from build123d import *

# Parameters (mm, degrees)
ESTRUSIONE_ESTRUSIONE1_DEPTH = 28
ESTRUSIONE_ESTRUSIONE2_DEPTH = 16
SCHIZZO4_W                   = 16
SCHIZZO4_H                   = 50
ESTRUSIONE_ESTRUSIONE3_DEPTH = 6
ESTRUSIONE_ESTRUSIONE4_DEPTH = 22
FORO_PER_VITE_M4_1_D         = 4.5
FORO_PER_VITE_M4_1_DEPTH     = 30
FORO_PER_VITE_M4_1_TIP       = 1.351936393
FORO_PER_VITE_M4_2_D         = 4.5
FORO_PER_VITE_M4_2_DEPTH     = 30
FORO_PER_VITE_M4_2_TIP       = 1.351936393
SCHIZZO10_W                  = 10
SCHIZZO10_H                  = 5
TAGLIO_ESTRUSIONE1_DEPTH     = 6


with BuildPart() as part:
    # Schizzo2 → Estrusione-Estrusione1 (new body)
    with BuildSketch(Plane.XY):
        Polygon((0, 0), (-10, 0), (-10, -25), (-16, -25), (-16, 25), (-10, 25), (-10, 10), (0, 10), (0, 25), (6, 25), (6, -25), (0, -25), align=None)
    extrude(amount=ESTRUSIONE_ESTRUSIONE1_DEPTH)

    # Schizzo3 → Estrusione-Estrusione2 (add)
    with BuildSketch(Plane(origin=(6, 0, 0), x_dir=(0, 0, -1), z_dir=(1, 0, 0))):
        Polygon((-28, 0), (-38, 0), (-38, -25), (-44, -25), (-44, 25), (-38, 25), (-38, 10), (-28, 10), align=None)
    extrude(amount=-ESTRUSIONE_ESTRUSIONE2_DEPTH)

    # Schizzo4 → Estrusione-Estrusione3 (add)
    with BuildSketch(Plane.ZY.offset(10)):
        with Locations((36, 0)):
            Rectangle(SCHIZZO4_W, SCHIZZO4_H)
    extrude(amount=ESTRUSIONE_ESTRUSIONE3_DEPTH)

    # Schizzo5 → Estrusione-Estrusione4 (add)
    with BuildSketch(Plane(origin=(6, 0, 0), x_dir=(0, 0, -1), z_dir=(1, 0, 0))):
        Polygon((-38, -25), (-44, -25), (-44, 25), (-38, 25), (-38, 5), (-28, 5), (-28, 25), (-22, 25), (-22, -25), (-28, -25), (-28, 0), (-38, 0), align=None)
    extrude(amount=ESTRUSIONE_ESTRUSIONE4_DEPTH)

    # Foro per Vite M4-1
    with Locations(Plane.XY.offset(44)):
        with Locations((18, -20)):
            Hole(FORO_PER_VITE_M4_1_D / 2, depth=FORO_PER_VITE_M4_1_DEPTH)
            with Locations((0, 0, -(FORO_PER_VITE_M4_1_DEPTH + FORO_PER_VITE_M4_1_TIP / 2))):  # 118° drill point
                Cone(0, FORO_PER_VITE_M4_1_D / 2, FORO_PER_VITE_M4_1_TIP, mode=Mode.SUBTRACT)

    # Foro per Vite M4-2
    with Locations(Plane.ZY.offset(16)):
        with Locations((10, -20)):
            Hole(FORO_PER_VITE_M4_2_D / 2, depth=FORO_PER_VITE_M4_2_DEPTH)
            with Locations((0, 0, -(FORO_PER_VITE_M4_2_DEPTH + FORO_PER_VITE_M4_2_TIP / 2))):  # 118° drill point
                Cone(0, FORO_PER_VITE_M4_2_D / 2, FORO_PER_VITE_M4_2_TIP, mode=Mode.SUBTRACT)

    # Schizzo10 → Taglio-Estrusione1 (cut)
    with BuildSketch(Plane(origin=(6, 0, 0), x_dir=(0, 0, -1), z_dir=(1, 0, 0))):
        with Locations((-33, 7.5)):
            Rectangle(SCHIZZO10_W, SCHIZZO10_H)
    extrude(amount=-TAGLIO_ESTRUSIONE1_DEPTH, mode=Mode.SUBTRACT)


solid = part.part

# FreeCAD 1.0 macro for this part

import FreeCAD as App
import Part
import Sketcher

V = App.Vector

doc = App.newDocument("Part")
params = doc.addObject("Spreadsheet::Sheet", "Params")
for row, (alias, value) in enumerate([
    ("sketch1_width", "10 mm"),
    ("sketch1_width2", "6 mm"),
    ("sketch1_height", "25 mm"),
    ("sketch1_height2", "15 mm"),
    ("pad1_length", "28 mm"),
    ("sketch2_width", "10 mm"),
    ("sketch2_width2", "15 mm"),
    ("sketch2_height", "6 mm"),
    ("pad2_length", "16 mm"),
    ("sketch3_width", "50 mm"),
    ("sketch3_height", "16 mm"),
    ("pad3_length", "6 mm"),
    ("sketch4_width", "25 mm"),
    ("sketch4_width2", "20 mm"),
    ("sketch4_height", "6 mm"),
    ("sketch4_height2", "10 mm"),
    ("pad4_length", "22 mm"),
    ("sketch5_diameter", "4.5 mm"),
    ("hole_diameter", "4.5 mm"),
    ("hole_depth", "30 mm"),
    ("sketch6_diameter", "4.5 mm"),
    ("hole2_diameter", "4.5 mm"),
    ("hole2_depth", "30 mm"),
    ("sketch7_width", "5 mm"),
    ("sketch7_height", "10 mm"),
    ("pocket1_length", "6 mm"),
], start=1):
    params.set(f"A{row}", alias)
    params.set(f"B{row}", "=" + value)
    params.setAlias(f"B{row}", alias)

body = doc.addObject("PartDesign::Body", "Body")

# Sketch on XY plane
sketch1 = doc.addObject("Sketcher::SketchObject", "Sketch")
body.addObject(sketch1)
sketch1.AttachmentSupport = (doc.XY_Plane, [""])
sketch1.MapMode = "FlatFace"
sketch1.addGeometry([
    Part.LineSegment(V(-10, 0, 0), V(0, 0, 0)),  # 0
    Part.LineSegment(V(0, 0, 0), V(0, -25, 0)),  # 1
    Part.LineSegment(V(0, -25, 0), V(6, -25, 0)),  # 2
    Part.LineSegment(V(6, -25, 0), V(6, 25, 0)),  # 3
    Part.LineSegment(V(6, 25, 0), V(0, 25, 0)),  # 4
    Part.LineSegment(V(0, 25, 0), V(0, 10, 0)),  # 5
    Part.LineSegment(V(0, 10, 0), V(-10, 10, 0)),  # 6
    Part.LineSegment(V(-10, 10, 0), V(-10, 25, 0)),  # 7
    Part.LineSegment(V(-10, 25, 0), V(-16, 25, 0)),  # 8
    Part.LineSegment(V(-16, 25, 0), V(-16, -25, 0)),  # 9
    Part.LineSegment(V(-16, -25, 0), V(-10, -25, 0)),  # 10
    Part.LineSegment(V(-10, -25, 0), V(-10, 0, 0)),  # 11
], False)
sketch1.addConstraint([
    Sketcher.Constraint("Coincident", 0, 2, 1, 1),
    Sketcher.Constraint("Coincident", 1, 2, 2, 1),
    Sketcher.Constraint("Coincident", 2, 2, 3, 1),
    Sketcher.Constraint("Coincident", 3, 2, 4, 1),
    Sketcher.Constraint("Coincident", 4, 2, 5, 1),
    Sketcher.Constraint("Coincident", 5, 2, 6, 1),
    Sketcher.Constraint("Coincident", 6, 2, 7, 1),
    Sketcher.Constraint("Coincident", 7, 2, 8, 1),
    Sketcher.Constraint("Coincident", 8, 2, 9, 1),
    Sketcher.Constraint("Coincident", 9, 2, 10, 1),
    Sketcher.Constraint("Coincident", 10, 2, 11, 1),
    Sketcher.Constraint("Coincident", 11, 2, 0, 1),
    Sketcher.Constraint("Horizontal", 0),
    Sketcher.Constraint("Vertical", 1),
    Sketcher.Constraint("Horizontal", 2),
    Sketcher.Constraint("Vertical", 3),
    Sketcher.Constraint("Horizontal", 4),
    Sketcher.Constraint("Vertical", 5),
    Sketcher.Constraint("Horizontal", 6),
    Sketcher.Constraint("Vertical", 7),
    Sketcher.Constraint("Horizontal", 8),
    Sketcher.Constraint("Vertical", 9),
    Sketcher.Constraint("Horizontal", 10),
    Sketcher.Constraint("Vertical", 11),
    Sketcher.Constraint("Coincident", 0, 2, -1, 1),
    Sketcher.Constraint("Symmetric", 1, 2, 4, 2, -1, 1),
    Sketcher.Constraint("Symmetric", 7, 2, 10, 2, -1),
    Sketcher.Constraint("Horizontal", 4, 2, 7, 2),
    Sketcher.Constraint("Equal", 4, 8),
    Sketcher.Constraint("DistanceX", 0, 1, 0, 2, 10.0),
    Sketcher.Constraint("DistanceX", 2, 1, 2, 2, 6.0),
    Sketcher.Constraint("DistanceY", 1, 2, 1, 1, 25.0),
    Sketcher.Constraint("DistanceY", 5, 2, 5, 1, 15.0),
])
sketch1.setExpression("Constraints[29]", "Params.sketch1_width")
sketch1.setExpression("Constraints[30]", "Params.sketch1_width2")
sketch1.setExpression("Constraints[31]", "Params.sketch1_height")
sketch1.setExpression("Constraints[32]", "Params.sketch1_height2")
pad1 = doc.addObject("PartDesign::Pad", "Pad")
body.addObject(pad1)
pad1.Profile = sketch1
pad1.setExpression("Length", "Params.pad1_length")

# Sketch on YZ plane
sketch2 = doc.addObject("Sketcher::SketchObject", "Sketch001")
body.addObject(sketch2)
sketch2.AttachmentSupport = (doc.YZ_Plane, [""])
sketch2.MapMode = "FlatFace"
sketch2.AttachmentOffset = App.Placement(V(0, 0, 6), App.Rotation())
sketch2.addGeometry([
    Part.LineSegment(V(0, 38, 0), V(0, 28, 0)),  # 0
    Part.LineSegment(V(0, 28, 0), V(10, 28, 0)),  # 1
    Part.LineSegment(V(10, 28, 0), V(10, 38, 0)),  # 2
    Part.LineSegment(V(10, 38, 0), V(25, 38, 0)),  # 3
    Part.LineSegment(V(25, 38, 0), V(25, 44, 0)),  # 4
    Part.LineSegment(V(25, 44, 0), V(-25, 44, 0)),  # 5
    Part.LineSegment(V(-25, 44, 0), V(-25, 38, 0)),  # 6
    Part.LineSegment(V(-25, 38, 0), V(0, 38, 0)),  # 7
], False)
sketch2.addConstraint([
    Sketcher.Constraint("Coincident", 0, 2, 1, 1),
    Sketcher.Constraint("Coincident", 1, 2, 2, 1),
    Sketcher.Constraint("Coincident", 2, 2, 3, 1),
    Sketcher.Constraint("Coincident", 3, 2, 4, 1),
    Sketcher.Constraint("Coincident", 4, 2, 5, 1),
    Sketcher.Constraint("Coincident", 5, 2, 6, 1),
    Sketcher.Constraint("Coincident", 6, 2, 7, 1),
    Sketcher.Constraint("Coincident", 7, 2, 0, 1),
    Sketcher.Constraint("Vertical", 0),
    Sketcher.Constraint("Horizontal", 1),
    Sketcher.Constraint("Vertical", 2),
    Sketcher.Constraint("Horizontal", 3),
    Sketcher.Constraint("Vertical", 4),
    Sketcher.Constraint("Horizontal", 5),
    Sketcher.Constraint("Vertical", 6),
    Sketcher.Constraint("Horizontal", 7),
    Sketcher.Constraint("Symmetric", 3, 2, 6, 2, -2),
    Sketcher.Constraint("PointOnObject", 0, 2, -2),
    Sketcher.Constraint("Equal", 1, 0),
    Sketcher.Constraint("DistanceX", 1, 1, 1, 2, 10.0),
    Sketcher.Constraint("DistanceX", 3, 1, 3, 2, 15.0),
    Sketcher.Constraint("DistanceY", 4, 1, 4, 2, 6.0),
    Sketcher.Constraint("DistanceY", -1, 1, 0, 2, 28.0),
])
sketch2.setExpression("Constraints[19]", "Params.sketch2_width")
sketch2.setExpression("Constraints[20]", "Params.sketch2_width2")
sketch2.setExpression("Constraints[21]", "Params.sketch2_height")
pad2 = doc.addObject("PartDesign::Pad", "Pad001")
body.addObject(pad2)
pad2.Profile = sketch2
pad2.setExpression("Length", "Params.pad2_length")
pad2.Reversed = True

# Sketch on YZ plane
sketch3 = doc.addObject("Sketcher::SketchObject", "Sketch002")
body.addObject(sketch3)
sketch3.AttachmentSupport = (doc.YZ_Plane, [""])
sketch3.MapMode = "FlatFace"
sketch3.AttachmentOffset = App.Placement(V(0, 0, -10), App.Rotation())
sketch3.addGeometry([
    Part.LineSegment(V(25, 28, 0), V(-25, 28, 0)),
    Part.LineSegment(V(-25, 28, 0), V(-25, 44, 0)),
    Part.LineSegment(V(-25, 44, 0), V(25, 44, 0)),
    Part.LineSegment(V(25, 44, 0), V(25, 28, 0)),
], False)
sketch3.addConstraint([
    Sketcher.Constraint("Coincident", 0, 2, 1, 1),
    Sketcher.Constraint("Coincident", 1, 2, 2, 1),
    Sketcher.Constraint("Coincident", 2, 2, 3, 1),
    Sketcher.Constraint("Coincident", 3, 2, 0, 1),
    Sketcher.Constraint("Horizontal", 0),
    Sketcher.Constraint("Vertical", 1),
    Sketcher.Constraint("Horizontal", 2),
    Sketcher.Constraint("Vertical", 3),
    Sketcher.Constraint("DistanceX", 0, 2, 0, 1, 50.0),
    Sketcher.Constraint("DistanceY", 1, 1, 1, 2, 16.0),
    Sketcher.Constraint("DistanceX", 0, 2, -1, 1, 25.0),
    Sketcher.Constraint("DistanceY", -1, 1, 0, 2, 28.0),
])
sketch3.setExpression("Constraints[8]", "Params.sketch3_width")
sketch3.setExpression("Constraints[9]", "Params.sketch3_height")
pad3 = doc.addObject("PartDesign::Pad", "Pad002")
body.addObject(pad3)
pad3.Profile = sketch3
pad3.setExpression("Length", "Params.pad3_length")
pad3.Reversed = True

# Sketch on YZ plane
sketch4 = doc.addObject("Sketcher::SketchObject", "Sketch003")
body.addObject(sketch4)
sketch4.AttachmentSupport = (doc.YZ_Plane, [""])
sketch4.MapMode = "FlatFace"
sketch4.AttachmentOffset = App.Placement(V(0, 0, 6), App.Rotation())
sketch4.addGeometry([
    Part.LineSegment(V(-25, 44, 0), V(-25, 38, 0)),  # 0
    Part.LineSegment(V(-25, 38, 0), V(0, 38, 0)),  # 1
    Part.LineSegment(V(0, 38, 0), V(0, 28, 0)),  # 2
    Part.LineSegment(V(0, 28, 0), V(-25, 28, 0)),  # 3
    Part.LineSegment(V(-25, 28, 0), V(-25, 22, 0)),  # 4
    Part.LineSegment(V(-25, 22, 0), V(25, 22, 0)),  # 5
    Part.LineSegment(V(25, 22, 0), V(25, 28, 0)),  # 6
    Part.LineSegment(V(25, 28, 0), V(5, 28, 0)),  # 7
    Part.LineSegment(V(5, 28, 0), V(5, 38, 0)),  # 8
    Part.LineSegment(V(5, 38, 0), V(25, 38, 0)),  # 9
    Part.LineSegment(V(25, 38, 0), V(25, 44, 0)),  # 10
    Part.LineSegment(V(25, 44, 0), V(-25, 44, 0)),  # 11
], False)
sketch4.addConstraint([
    Sketcher.Constraint("Coincident", 0, 2, 1, 1),
    Sketcher.Constraint("Coincident", 1, 2, 2, 1),
    Sketcher.Constraint("Coincident", 2, 2, 3, 1),
    Sketcher.Constraint("Coincident", 3, 2, 4, 1),
    Sketcher.Constraint("Coincident", 4, 2, 5, 1),
    Sketcher.Constraint("Coincident", 5, 2, 6, 1),
    Sketcher.Constraint("Coincident", 6, 2, 7, 1),
    Sketcher.Constraint("Coincident", 7, 2, 8, 1),
    Sketcher.Constraint("Coincident", 8, 2, 9, 1),
    Sketcher.Constraint("Coincident", 9, 2, 10, 1),
    Sketcher.Constraint("Coincident", 10, 2, 11, 1),
    Sketcher.Constraint("Coincident", 11, 2, 0, 1),
    Sketcher.Constraint("Vertical", 0),
    Sketcher.Constraint("Horizontal", 1),
    Sketcher.Constraint("Vertical", 2),
    Sketcher.Constraint("Horizontal", 3),
    Sketcher.Constraint("Vertical", 4),
    Sketcher.Constraint("Horizontal", 5),
    Sketcher.Constraint("Vertical", 6),
    Sketcher.Constraint("Horizontal", 7),
    Sketcher.Constraint("Vertical", 8),
    Sketcher.Constraint("Horizontal", 9),
    Sketcher.Constraint("Vertical", 10),
    Sketcher.Constraint("Horizontal", 11),
    Sketcher.Constraint("Symmetric", 3, 2, 6, 2, -2),
    Sketcher.Constraint("Symmetric", 0, 2, 9, 2, -2),
    Sketcher.Constraint("PointOnObject", 1, 2, -2),
    Sketcher.Constraint("Vertical", 0, 2, 3, 2),
    Sketcher.Constraint("Equal", 0, 4),
    Sketcher.Constraint("DistanceX", 1, 1, 1, 2, 25.0),
    Sketcher.Constraint("DistanceX", 7, 2, 7, 1, 20.0),
    Sketcher.Constraint("DistanceY", 0, 2, 0, 1, 6.0),
    Sketcher.Constraint("DistanceY", 2, 2, 2, 1, 10.0),
    Sketcher.Constraint("DistanceY", -1, 1, 0, 2, 38.0),
])
sketch4.setExpression("Constraints[29]", "Params.sketch4_width")
sketch4.setExpression("Constraints[30]", "Params.sketch4_width2")
sketch4.setExpression("Constraints[31]", "Params.sketch4_height")
sketch4.setExpression("Constraints[32]", "Params.sketch4_height2")
pad4 = doc.addObject("PartDesign::Pad", "Pad003")
body.addObject(pad4)
pad4.Profile = sketch4
pad4.setExpression("Length", "Params.pad4_length")

# Sketch on XY plane
sketch5 = doc.addObject("Sketcher::SketchObject", "Sketch004")
body.addObject(sketch5)
sketch5.AttachmentSupport = (doc.XY_Plane, [""])
sketch5.MapMode = "FlatFace"
sketch5.AttachmentOffset = App.Placement(V(0, 0, 44), App.Rotation())
sketch5.addGeometry(Part.Circle(V(18, -20, 0), V(0, 0, 1), 2.2), False)
sketch5.addConstraint([
    Sketcher.Constraint("Diameter", 0, 4.5),
    Sketcher.Constraint("DistanceX", -1, 1, 0, 3, 18.0),
    Sketcher.Constraint("DistanceY", 0, 3, -1, 1, 20.0),
])
sketch5.setExpression("Constraints[0]", "Params.sketch5_diameter")
doc.recompute()
hole = doc.addObject("PartDesign::Hole", "Hole")
body.addObject(hole)
hole.Profile = sketch5
hole.ThreadType = "None"
hole.setExpression("Diameter", "Params.hole_diameter")
hole.DepthType = "Dimension"
hole.setExpression("Depth", "Params.hole_depth")
hole.DrillPoint = "Angled"
hole.DrillPointAngle = 118

# Sketch on YZ plane
sketch6 = doc.addObject("Sketcher::SketchObject", "Sketch005")
body.addObject(sketch6)
sketch6.AttachmentSupport = (doc.YZ_Plane, [""])
sketch6.MapMode = "FlatFace"
sketch6.AttachmentOffset = App.Placement(V(0, 0, -16), App.Rotation())
sketch6.addGeometry(Part.Circle(V(-20, 10, 0), V(0, 0, 1), 2.2), False)
sketch6.addConstraint([
    Sketcher.Constraint("Diameter", 0, 4.5),
    Sketcher.Constraint("DistanceX", 0, 3, -1, 1, 20.0),
    Sketcher.Constraint("DistanceY", -1, 1, 0, 3, 10.0),
])
sketch6.setExpression("Constraints[0]", "Params.sketch6_diameter")
doc.recompute()
hole2 = doc.addObject("PartDesign::Hole", "Hole001")
body.addObject(hole2)
hole2.Profile = sketch6
hole2.ThreadType = "None"
hole2.setExpression("Diameter", "Params.hole2_diameter")
hole2.DepthType = "Dimension"
hole2.setExpression("Depth", "Params.hole2_depth")
hole2.DrillPoint = "Angled"
hole2.DrillPointAngle = 118
hole2.Reversed = True

# Sketch on YZ plane
sketch7 = doc.addObject("Sketcher::SketchObject", "Sketch006")
body.addObject(sketch7)
sketch7.AttachmentSupport = (doc.YZ_Plane, [""])
sketch7.MapMode = "FlatFace"
sketch7.AttachmentOffset = App.Placement(V(0, 0, 6), App.Rotation())
sketch7.addGeometry([
    Part.LineSegment(V(10, 38, 0), V(5, 38, 0)),
    Part.LineSegment(V(5, 38, 0), V(5, 28, 0)),
    Part.LineSegment(V(5, 28, 0), V(10, 28, 0)),
    Part.LineSegment(V(10, 28, 0), V(10, 38, 0)),
], False)
sketch7.addConstraint([
    Sketcher.Constraint("Coincident", 0, 2, 1, 1),
    Sketcher.Constraint("Coincident", 1, 2, 2, 1),
    Sketcher.Constraint("Coincident", 2, 2, 3, 1),
    Sketcher.Constraint("Coincident", 3, 2, 0, 1),
    Sketcher.Constraint("Horizontal", 0),
    Sketcher.Constraint("Vertical", 1),
    Sketcher.Constraint("Horizontal", 2),
    Sketcher.Constraint("Vertical", 3),
    Sketcher.Constraint("DistanceX", 0, 2, 0, 1, 5.0),
    Sketcher.Constraint("DistanceY", 1, 2, 1, 1, 10.0),
    Sketcher.Constraint("DistanceX", -1, 1, 0, 2, 5.0),
    Sketcher.Constraint("DistanceY", -1, 1, 0, 2, 38.0),
])
sketch7.setExpression("Constraints[8]", "Params.sketch7_width")
sketch7.setExpression("Constraints[9]", "Params.sketch7_height")
pocket1 = doc.addObject("PartDesign::Pocket", "Pocket")
body.addObject(pocket1)
pocket1.Profile = sketch7
pocket1.setExpression("Length", "Params.pocket1_length")

doc.recompute()
